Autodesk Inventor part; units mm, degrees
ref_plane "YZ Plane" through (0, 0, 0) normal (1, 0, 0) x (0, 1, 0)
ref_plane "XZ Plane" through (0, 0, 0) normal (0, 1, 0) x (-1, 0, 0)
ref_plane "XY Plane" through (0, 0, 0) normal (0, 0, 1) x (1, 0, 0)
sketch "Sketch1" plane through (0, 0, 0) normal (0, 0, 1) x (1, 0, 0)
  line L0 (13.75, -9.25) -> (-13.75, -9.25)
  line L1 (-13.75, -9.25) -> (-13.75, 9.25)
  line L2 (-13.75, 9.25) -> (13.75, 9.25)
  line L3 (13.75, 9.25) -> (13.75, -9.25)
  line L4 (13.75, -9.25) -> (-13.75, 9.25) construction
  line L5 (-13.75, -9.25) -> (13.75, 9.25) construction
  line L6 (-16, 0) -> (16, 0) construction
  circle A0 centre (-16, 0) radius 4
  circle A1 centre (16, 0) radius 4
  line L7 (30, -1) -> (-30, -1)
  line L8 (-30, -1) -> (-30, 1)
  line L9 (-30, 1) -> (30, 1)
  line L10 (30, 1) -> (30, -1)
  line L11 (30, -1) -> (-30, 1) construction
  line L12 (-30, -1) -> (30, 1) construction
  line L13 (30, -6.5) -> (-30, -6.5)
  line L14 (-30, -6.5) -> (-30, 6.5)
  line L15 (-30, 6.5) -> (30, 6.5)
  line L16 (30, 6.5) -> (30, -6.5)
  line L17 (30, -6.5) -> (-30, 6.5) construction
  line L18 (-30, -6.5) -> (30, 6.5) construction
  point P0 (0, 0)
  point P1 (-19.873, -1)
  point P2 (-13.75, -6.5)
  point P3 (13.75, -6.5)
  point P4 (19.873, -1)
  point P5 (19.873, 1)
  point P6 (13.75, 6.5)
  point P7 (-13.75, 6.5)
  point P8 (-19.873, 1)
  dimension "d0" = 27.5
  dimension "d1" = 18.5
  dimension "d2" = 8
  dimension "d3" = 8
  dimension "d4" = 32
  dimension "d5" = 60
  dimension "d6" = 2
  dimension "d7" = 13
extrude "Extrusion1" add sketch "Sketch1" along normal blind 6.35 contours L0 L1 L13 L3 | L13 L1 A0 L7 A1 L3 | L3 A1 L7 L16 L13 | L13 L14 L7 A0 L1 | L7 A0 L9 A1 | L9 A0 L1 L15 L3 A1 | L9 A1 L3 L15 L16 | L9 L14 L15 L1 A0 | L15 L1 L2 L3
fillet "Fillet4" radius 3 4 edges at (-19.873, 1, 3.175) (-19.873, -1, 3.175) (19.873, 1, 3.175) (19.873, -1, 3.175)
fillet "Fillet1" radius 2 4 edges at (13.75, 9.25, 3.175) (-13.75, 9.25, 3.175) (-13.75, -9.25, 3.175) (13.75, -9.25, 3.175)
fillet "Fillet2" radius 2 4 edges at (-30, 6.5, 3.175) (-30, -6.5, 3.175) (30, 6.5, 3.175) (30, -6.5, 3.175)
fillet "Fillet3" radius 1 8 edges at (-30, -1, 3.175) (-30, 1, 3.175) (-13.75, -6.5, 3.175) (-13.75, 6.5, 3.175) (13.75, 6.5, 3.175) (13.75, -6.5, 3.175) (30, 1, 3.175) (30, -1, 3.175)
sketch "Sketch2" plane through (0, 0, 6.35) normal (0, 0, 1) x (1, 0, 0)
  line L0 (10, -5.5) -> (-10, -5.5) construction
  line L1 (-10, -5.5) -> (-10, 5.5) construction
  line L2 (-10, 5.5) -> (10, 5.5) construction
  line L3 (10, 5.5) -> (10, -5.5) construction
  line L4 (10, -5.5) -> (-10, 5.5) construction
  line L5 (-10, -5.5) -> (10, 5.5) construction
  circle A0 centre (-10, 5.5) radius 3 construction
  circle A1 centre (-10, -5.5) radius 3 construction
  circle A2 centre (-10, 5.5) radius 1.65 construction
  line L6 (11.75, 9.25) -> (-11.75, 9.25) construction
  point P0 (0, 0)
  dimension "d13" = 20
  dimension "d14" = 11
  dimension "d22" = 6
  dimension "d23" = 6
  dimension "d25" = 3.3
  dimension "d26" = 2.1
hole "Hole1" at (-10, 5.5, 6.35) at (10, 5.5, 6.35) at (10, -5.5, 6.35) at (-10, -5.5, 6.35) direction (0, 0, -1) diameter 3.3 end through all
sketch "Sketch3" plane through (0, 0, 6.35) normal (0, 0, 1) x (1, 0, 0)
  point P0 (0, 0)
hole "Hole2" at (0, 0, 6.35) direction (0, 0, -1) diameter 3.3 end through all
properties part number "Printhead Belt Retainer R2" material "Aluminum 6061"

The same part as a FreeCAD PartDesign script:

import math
import FreeCAD as App
import Part
import Sketcher
Q = App.Units.Quantity


def edges_at(feature, points):
    """Names of the edges that pass closest to the given points."""
    edges = feature.Shape.Edges
    near = lambda p: min(range(len(edges)), key=lambda i: edges[i].distToShape(Part.Vertex(*p))[0])
    return sorted({f"Edge{near(p) + 1}" for p in points})

doc = App.newDocument("Part")
params = doc.addObject("Spreadsheet::Sheet", "Params")
for row, (alias, value) in enumerate([
    ("sketch1_radius", "4 mm"),
    ("sketch1_width", "27.5 mm"),
    ("sketch1_height", "2.75 mm"),
    ("pad1_length", "6.35 mm"),
    ("fillet_radius", "3 mm"),
    ("fillet2_radius", "2 mm"),
    ("fillet3_radius", "2 mm"),
    ("fillet4_radius", "1 mm"),
    ("sketch2_diameter", "3.3 mm"),
    ("hole_diameter", "3.3 mm"),
    ("sketch3_diameter", "3.3 mm"),
    ("hole2_diameter", "3.3 mm"),
], start=1):
    params.set(f"A{row}", alias)
    params.set(f"B{row}", "=" + value)
    params.setAlias(f"B{row}", alias)

body = doc.addObject("PartDesign::Body", "Body")

# Sketch on XY plane
sketch1 = body.newObject("Sketcher::SketchObject", "Sketch")
sketch1.AttachmentSupport = (doc.getObject("XY_Plane"), [""])
sketch1.MapMode = "FlatFace"
sketch1.addGeometry(Part.LineSegment(App.Vector(-13.8, -9.2, 0), App.Vector(13.8, -9.2, 0)), False)
sketch1.addGeometry(Part.LineSegment(App.Vector(13.8, -9.2, 0), App.Vector(13.8, -6.5, 0)), False)
sketch1.addGeometry(Part.LineSegment(App.Vector(13.8, -6.5, 0), App.Vector(30, -6.5, 0)), False)
sketch1.addGeometry(Part.LineSegment(App.Vector(30, -6.5, 0), App.Vector(30, -1, 0)), False)
sketch1.addGeometry(Part.LineSegment(App.Vector(30, -1, 0), App.Vector(19.9, -1, 0)), False)
sketch1.addGeometry(Part.ArcOfCircle(Part.Circle(App.Vector(16, 0, 0), App.Vector(0, 0, 1), 4), math.radians(14), math.radians(346)), False)
sketch1.addGeometry(Part.LineSegment(App.Vector(19.9, 1, 0), App.Vector(30, 1, 0)), False)
sketch1.addGeometry(Part.LineSegment(App.Vector(30, 1, 0), App.Vector(30, 6.5, 0)), False)
sketch1.addGeometry(Part.LineSegment(App.Vector(30, 6.5, 0), App.Vector(13.8, 6.5, 0)), False)
sketch1.addGeometry(Part.LineSegment(App.Vector(13.8, 6.5, 0), App.Vector(13.8, 9.2, 0)), False)
sketch1.addGeometry(Part.LineSegment(App.Vector(13.8, 9.2, 0), App.Vector(-13.8, 9.2, 0)), False)
sketch1.addGeometry(Part.LineSegment(App.Vector(-13.8, 9.2, 0), App.Vector(-13.8, 6.5, 0)), False)
sketch1.addGeometry(Part.LineSegment(App.Vector(-13.8, 6.5, 0), App.Vector(-30, 6.5, 0)), False)
sketch1.addGeometry(Part.LineSegment(App.Vector(-30, 6.5, 0), App.Vector(-30, 1, 0)), False)
sketch1.addGeometry(Part.LineSegment(App.Vector(-30, 1, 0), App.Vector(-19.9, 1, 0)), False)
sketch1.addGeometry(Part.ArcOfCircle(Part.Circle(App.Vector(-16, 0, 0), App.Vector(0, 0, 1), 4), math.radians(-166), math.radians(166)), False)
sketch1.addGeometry(Part.LineSegment(App.Vector(-19.9, -1, 0), App.Vector(-30, -1, 0)), False)
sketch1.addGeometry(Part.LineSegment(App.Vector(-30, -1, 0), App.Vector(-30, -6.5, 0)), False)
sketch1.addGeometry(Part.LineSegment(App.Vector(-30, -6.5, 0), App.Vector(-13.8, -6.5, 0)), False)
sketch1.addGeometry(Part.LineSegment(App.Vector(-13.8, -6.5, 0), App.Vector(-13.8, -9.2, 0)), False)
sketch1.addConstraint(Sketcher.Constraint("Coincident", 0, 2, 1, 1))
sketch1.addConstraint(Sketcher.Constraint("Coincident", 1, 2, 2, 1))
sketch1.addConstraint(Sketcher.Constraint("Coincident", 2, 2, 3, 1))
sketch1.addConstraint(Sketcher.Constraint("Coincident", 3, 2, 4, 1))
sketch1.addConstraint(Sketcher.Constraint("Coincident", 4, 2, 5, 2))
sketch1.addConstraint(Sketcher.Constraint("Coincident", 5, 1, 6, 1))
sketch1.addConstraint(Sketcher.Constraint("Coincident", 6, 2, 7, 1))
sketch1.addConstraint(Sketcher.Constraint("Coincident", 7, 2, 8, 1))
sketch1.addConstraint(Sketcher.Constraint("Coincident", 8, 2, 9, 1))
sketch1.addConstraint(Sketcher.Constraint("Coincident", 9, 2, 10, 1))
sketch1.addConstraint(Sketcher.Constraint("Coincident", 10, 2, 11, 1))
sketch1.addConstraint(Sketcher.Constraint("Coincident", 11, 2, 12, 1))
sketch1.addConstraint(Sketcher.Constraint("Coincident", 12, 2, 13, 1))
sketch1.addConstraint(Sketcher.Constraint("Coincident", 13, 2, 14, 1))
sketch1.addConstraint(Sketcher.Constraint("Coincident", 14, 2, 15, 2))
sketch1.addConstraint(Sketcher.Constraint("Coincident", 15, 1, 16, 1))
sketch1.addConstraint(Sketcher.Constraint("Coincident", 16, 2, 17, 1))
sketch1.addConstraint(Sketcher.Constraint("Coincident", 17, 2, 18, 1))
sketch1.addConstraint(Sketcher.Constraint("Coincident", 18, 2, 19, 1))
sketch1.addConstraint(Sketcher.Constraint("Coincident", 19, 2, 0, 1))
sketch1.addConstraint(Sketcher.Constraint("Horizontal", 0))
sketch1.addConstraint(Sketcher.Constraint("Vertical", 1))
sketch1.addConstraint(Sketcher.Constraint("Horizontal", 2))
sketch1.addConstraint(Sketcher.Constraint("Vertical", 3))
sketch1.addConstraint(Sketcher.Constraint("Horizontal", 4))
sketch1.addConstraint(Sketcher.Constraint("Horizontal", 6))
sketch1.addConstraint(Sketcher.Constraint("Vertical", 7))
sketch1.addConstraint(Sketcher.Constraint("Horizontal", 8))
sketch1.addConstraint(Sketcher.Constraint("Vertical", 9))
sketch1.addConstraint(Sketcher.Constraint("Horizontal", 10))
sketch1.addConstraint(Sketcher.Constraint("Vertical", 11))
sketch1.addConstraint(Sketcher.Constraint("Horizontal", 12))
sketch1.addConstraint(Sketcher.Constraint("Vertical", 13))
sketch1.addConstraint(Sketcher.Constraint("Horizontal", 14))
sketch1.addConstraint(Sketcher.Constraint("Horizontal", 16))
sketch1.addConstraint(Sketcher.Constraint("Vertical", 17))
sketch1.addConstraint(Sketcher.Constraint("Horizontal", 18))
sketch1.addConstraint(Sketcher.Constraint("Vertical", 19))
sketch1.addConstraint(Sketcher.Constraint("Equal", 5, 15))
sketch1.addConstraint(Sketcher.Constraint("Symmetric", 5, 3, 15, 3, -1, 1))
sketch1.addConstraint(Sketcher.Constraint("Symmetric", 0, 2, 10, 2, -1, 1))
sketch1.addConstraint(Sketcher.Constraint("Symmetric", 2, 2, 12, 2, -1, 1))
sketch1.addConstraint(Sketcher.Constraint("Symmetric", 6, 2, 16, 2, -1, 1))
sketch1.addConstraint(Sketcher.Constraint("Symmetric", 8, 2, 18, 2, -1, 1))
sketch1.addConstraint(Sketcher.Constraint("Symmetric", 8, 2, 11, 2, -2))
sketch1.addConstraint(Sketcher.Constraint("Symmetric", 6, 2, 13, 2, -2))
sketch1.addConstraint(Sketcher.Constraint("Symmetric", 4, 2, 15, 1, -2))
sketch1.addConstraint(Sketcher.Constraint("Radius", 5, Q("4 mm")))
sketch1.addConstraint(Sketcher.Constraint("DistanceX", 0, 1, 0, 2, Q("27.5 mm")))
sketch1.addConstraint(Sketcher.Constraint("DistanceX", 15, 3, 5, 3, Q("32 mm")))
sketch1.addConstraint(Sketcher.Constraint("DistanceY", 4, 2, 5, 1, Q("2 mm")))
sketch1.addConstraint(Sketcher.Constraint("DistanceY", 2, 2, 7, 2, Q("13 mm")))
sketch1.addConstraint(Sketcher.Constraint("DistanceX", -1, 1, 2, 2, Q("30 mm")))
sketch1.addConstraint(Sketcher.Constraint("DistanceY", 1, 1, 1, 2, Q("2.75 mm")))
sketch1.setExpression("Constraints[47]", "Params.sketch1_radius")
sketch1.setExpression("Constraints[48]", "Params.sketch1_width")
sketch1.setExpression("Constraints[53]", "Params.sketch1_height")
pad1 = body.newObject("PartDesign::Pad", "Pad")
pad1.Profile = sketch1
pad1.setExpression("Length", "Params.pad1_length")
doc.recompute()

fillet = body.newObject("PartDesign::Fillet", "Fillet")
fillet.Base = (pad1, edges_at(pad1, [
    (-19.873, 1, 3.175),
    (-19.873, -1, 3.175),
    (19.873, 1, 3.175),
    (19.873, -1, 3.175),
]))
fillet.setExpression("Radius", "Params.fillet_radius")
doc.recompute()

fillet2 = body.newObject("PartDesign::Fillet", "Fillet001")
fillet2.Base = (fillet, edges_at(fillet, [
    (13.75, 9.25, 3.175),
    (-13.75, 9.25, 3.175),
    (-13.75, -9.25, 3.175),
    (13.75, -9.25, 3.175),
]))
fillet2.setExpression("Radius", "Params.fillet2_radius")
doc.recompute()

fillet3 = body.newObject("PartDesign::Fillet", "Fillet002")
fillet3.Base = (fillet2, edges_at(fillet2, [
    (-30, 6.5, 3.175),
    (-30, -6.5, 3.175),
    (30, 6.5, 3.175),
    (30, -6.5, 3.175),
]))
fillet3.setExpression("Radius", "Params.fillet3_radius")
doc.recompute()

fillet4 = body.newObject("PartDesign::Fillet", "Fillet003")
fillet4.Base = (fillet3, edges_at(fillet3, [
    (-30, -1, 3.175),
    (-30, 1, 3.175),
    (-13.75, -6.5, 3.175),
    (-13.75, 6.5, 3.175),
    (13.75, 6.5, 3.175),
    (13.75, -6.5, 3.175),
    (30, 1, 3.175),
    (30, -1, 3.175),
]))
fillet4.setExpression("Radius", "Params.fillet4_radius")

# Sketch on XY plane
sketch2 = body.newObject("Sketcher::SketchObject", "Sketch001")
sketch2.AttachmentSupport = (doc.getObject("XY_Plane"), [""])
sketch2.MapMode = "FlatFace"
sketch2.AttachmentOffset = App.Placement(App.Vector(0, 0, 6.35), App.Rotation())
sketch2.addGeometry(Part.Circle(App.Vector(-10, 5.5, 0), App.Vector(0, 0, 1), 1.6), False)
sketch2.addGeometry(Part.Circle(App.Vector(10, 5.5, 0), App.Vector(0, 0, 1), 1.6), False)
sketch2.addGeometry(Part.Circle(App.Vector(10, -5.5, 0), App.Vector(0, 0, 1), 1.6), False)
sketch2.addGeometry(Part.Circle(App.Vector(-10, -5.5, 0), App.Vector(0, 0, 1), 1.6), False)
sketch2.addConstraint(Sketcher.Constraint("Equal", 0, 1))
sketch2.addConstraint(Sketcher.Constraint("Equal", 1, 2))
sketch2.addConstraint(Sketcher.Constraint("Equal", 2, 3))
sketch2.addConstraint(Sketcher.Constraint("Symmetric", 0, 3, 2, 3, -1, 1))
sketch2.addConstraint(Sketcher.Constraint("Symmetric", 1, 3, 3, 3, -1, 1))
sketch2.addConstraint(Sketcher.Constraint("Symmetric", 0, 3, 1, 3, -2))
sketch2.addConstraint(Sketcher.Constraint("Diameter", 0, Q("3.3 mm")))
sketch2.addConstraint(Sketcher.Constraint("DistanceX", 0, 3, -1, 1, Q("10 mm")))
sketch2.addConstraint(Sketcher.Constraint("DistanceY", 2, 3, 1, 3, Q("11 mm")))
sketch2.setExpression("Constraints[6]", "Params.sketch2_diameter")
doc.recompute()
hole = body.newObject("PartDesign::Hole", "Hole")
hole.Profile = sketch2
hole.ThreadType = "None"
hole.setExpression("Diameter", "Params.hole_diameter")
hole.DepthType = "ThroughAll"

# Sketch on XY plane
sketch3 = body.newObject("Sketcher::SketchObject", "Sketch002")
sketch3.AttachmentSupport = (doc.getObject("XY_Plane"), [""])
sketch3.MapMode = "FlatFace"
sketch3.AttachmentOffset = App.Placement(App.Vector(0, 0, 6.35), App.Rotation())
sketch3.addGeometry(Part.Circle(App.Vector(0, 0, 0), App.Vector(0, 0, 1), 1.6), False)
sketch3.addConstraint(Sketcher.Constraint("Coincident", 0, 3, -1, 1))
sketch3.addConstraint(Sketcher.Constraint("Diameter", 0, Q("3.3 mm")))
sketch3.setExpression("Constraints[1]", "Params.sketch3_diameter")
doc.recompute()
hole2 = body.newObject("PartDesign::Hole", "Hole001")
hole2.Profile = sketch3
hole2.ThreadType = "None"
hole2.setExpression("Diameter", "Params.hole2_diameter")
hole2.DepthType = "ThroughAll"

doc.recompute()
